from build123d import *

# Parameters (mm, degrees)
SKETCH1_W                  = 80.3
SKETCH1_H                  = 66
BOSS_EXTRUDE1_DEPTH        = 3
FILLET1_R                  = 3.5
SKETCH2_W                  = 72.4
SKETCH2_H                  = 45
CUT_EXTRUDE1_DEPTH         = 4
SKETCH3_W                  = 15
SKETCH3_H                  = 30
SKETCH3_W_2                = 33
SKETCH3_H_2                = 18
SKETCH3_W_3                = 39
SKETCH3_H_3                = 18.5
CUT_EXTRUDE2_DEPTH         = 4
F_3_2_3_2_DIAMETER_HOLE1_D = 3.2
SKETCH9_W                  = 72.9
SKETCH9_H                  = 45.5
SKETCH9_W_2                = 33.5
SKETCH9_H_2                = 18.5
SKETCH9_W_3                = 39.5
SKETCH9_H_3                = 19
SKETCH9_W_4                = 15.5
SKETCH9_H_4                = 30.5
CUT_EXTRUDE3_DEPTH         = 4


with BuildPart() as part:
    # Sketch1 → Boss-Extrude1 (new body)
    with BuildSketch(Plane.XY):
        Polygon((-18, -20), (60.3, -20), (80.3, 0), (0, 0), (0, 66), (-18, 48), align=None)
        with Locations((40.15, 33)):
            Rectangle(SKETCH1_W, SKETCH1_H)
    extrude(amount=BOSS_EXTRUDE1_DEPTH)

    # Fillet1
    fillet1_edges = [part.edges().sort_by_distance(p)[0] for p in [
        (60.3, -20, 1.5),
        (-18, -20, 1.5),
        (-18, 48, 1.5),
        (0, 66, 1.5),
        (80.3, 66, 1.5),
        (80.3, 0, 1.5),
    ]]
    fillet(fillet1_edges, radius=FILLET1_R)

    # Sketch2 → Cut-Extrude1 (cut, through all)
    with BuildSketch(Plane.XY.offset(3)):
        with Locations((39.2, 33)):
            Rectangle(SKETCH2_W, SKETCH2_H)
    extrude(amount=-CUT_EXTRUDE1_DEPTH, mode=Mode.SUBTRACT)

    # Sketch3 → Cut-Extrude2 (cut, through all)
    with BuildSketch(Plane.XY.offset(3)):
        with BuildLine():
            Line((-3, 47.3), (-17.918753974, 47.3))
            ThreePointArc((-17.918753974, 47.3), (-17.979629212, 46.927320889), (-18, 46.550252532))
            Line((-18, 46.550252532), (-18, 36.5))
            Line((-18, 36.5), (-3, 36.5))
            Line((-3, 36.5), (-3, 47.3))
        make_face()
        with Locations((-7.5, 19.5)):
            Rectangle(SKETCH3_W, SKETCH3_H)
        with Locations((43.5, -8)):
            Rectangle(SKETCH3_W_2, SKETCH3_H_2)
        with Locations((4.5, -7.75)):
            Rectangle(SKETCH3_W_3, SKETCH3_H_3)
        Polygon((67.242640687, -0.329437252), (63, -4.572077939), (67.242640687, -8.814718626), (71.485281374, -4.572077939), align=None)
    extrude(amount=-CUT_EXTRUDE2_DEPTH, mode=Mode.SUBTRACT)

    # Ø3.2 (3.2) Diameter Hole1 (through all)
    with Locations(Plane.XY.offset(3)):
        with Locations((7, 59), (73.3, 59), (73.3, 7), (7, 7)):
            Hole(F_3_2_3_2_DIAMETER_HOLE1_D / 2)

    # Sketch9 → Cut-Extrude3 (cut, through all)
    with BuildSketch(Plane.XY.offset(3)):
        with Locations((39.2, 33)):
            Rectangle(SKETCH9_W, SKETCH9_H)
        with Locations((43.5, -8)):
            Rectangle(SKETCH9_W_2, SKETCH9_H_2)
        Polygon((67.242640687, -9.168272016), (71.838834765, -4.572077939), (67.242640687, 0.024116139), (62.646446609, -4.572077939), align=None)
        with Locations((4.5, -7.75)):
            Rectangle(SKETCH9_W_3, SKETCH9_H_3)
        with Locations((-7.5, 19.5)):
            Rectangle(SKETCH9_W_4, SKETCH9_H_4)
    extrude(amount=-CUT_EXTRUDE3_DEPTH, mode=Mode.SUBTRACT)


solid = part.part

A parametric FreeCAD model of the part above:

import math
import FreeCAD as App
import Part
import Sketcher

V = App.Vector
Q = App.Units.Quantity


def edges_at(feature, points):
    """Names of the edges that pass closest to the given points."""
    edges = feature.Shape.Edges
    near = lambda p: min(range(len(edges)), key=lambda i: edges[i].distToShape(Part.Vertex(*p))[0])
    return sorted({f"Edge{near(p) + 1}" for p in points})


def add_polygon(sketch, points):
    """Adds a closed chain of lines whose ends are joined by coincident constraints."""
    first, n = sketch.GeometryCount, len(points)
    for a, b in zip(points, points[1:] + points[:1]):
        sketch.addGeometry(Part.LineSegment(App.Vector(*a, 0), App.Vector(*b, 0)), False)
    for i in range(n):
        sketch.addConstraint(Sketcher.Constraint("Coincident", first + i, 2, first + (i + 1) % n, 1))

doc = App.newDocument("Part")
body = doc.addObject("PartDesign::Body", "Body")

# Sketch on XY plane
sketch1 = body.newObject("Sketcher::SketchObject", "Sketch")
sketch1.AttachmentSupport = (doc.getObject("XY_Plane"), [""])
sketch1.MapMode = "FlatFace"
add_polygon(sketch1, [(-18, -20), (60, -20), (80, 0), (80, 66), (0, 66), (-18, 48)])  # lines 0-5
sketch1.addConstraint([
    Sketcher.Constraint("Horizontal", 0),
    Sketcher.Constraint("Vertical", 2),
    Sketcher.Constraint("Horizontal", 3),
    Sketcher.Constraint("Vertical", 5),
    Sketcher.Constraint("PointOnObject", 1, 2, -1),
    Sketcher.Constraint("PointOnObject", 3, 2, -2),
    Sketcher.Constraint("Parallel", 1, 4),
    Sketcher.Constraint("DistanceY", 2, 1, 2, 2, 66.0),
    Sketcher.Constraint("DistanceY", 5, 2, 5, 1, 68.0),
    Sketcher.Constraint("Angle", 1, Q("45 deg")),
    Sketcher.Constraint("DistanceX", 0, 1, 0, 2, 78.3),
    Sketcher.Constraint("DistanceY", 0, 2, -1, 1, 20.0),
])
pad1 = body.newObject("PartDesign::Pad", "Pad")
pad1.Profile = sketch1
pad1.Length = 3
doc.recompute()

fillet = body.newObject("PartDesign::Fillet", "Fillet")
fillet.Base = (pad1, edges_at(pad1, [
    (60.3, -20, 1.5),
    (-18, -20, 1.5),
    (-18, 48, 1.5),
    (0, 66, 1.5),
    (80.3, 66, 1.5),
    (80.3, 0, 1.5),
]))
fillet.Radius = 3.5

# Sketch on XY plane
sketch2 = body.newObject("Sketcher::SketchObject", "Sketch001")
sketch2.AttachmentSupport = (doc.getObject("XY_Plane"), [""])
sketch2.MapMode = "FlatFace"
sketch2.AttachmentOffset = App.Placement(V(0, 0, 3), App.Rotation())
add_polygon(sketch2, [(3, 56), (3, 10), (75, 10), (75, 56)])  # lines 0-3
sketch2.addConstraint([
    Sketcher.Constraint("Vertical", 0),
    Sketcher.Constraint("Horizontal", 1),
    Sketcher.Constraint("Vertical", 2),
    Sketcher.Constraint("Horizontal", 3),
    Sketcher.Constraint("DistanceY", 0, 2, 0, 1, 45.0),
    Sketcher.Constraint("DistanceX", 1, 1, 1, 2, 72.4),
    Sketcher.Constraint("DistanceX", -1, 1, 0, 2, 3.0),
    Sketcher.Constraint("DistanceY", -1, 1, 0, 2, 10.5),
])
pocket1 = body.newObject("PartDesign::Pocket", "Pocket")
pocket1.Profile = sketch2
pocket1.Type = "ThroughAll"

# Sketch on XY plane
sketch3 = body.newObject("Sketcher::SketchObject", "Sketch002")
sketch3.AttachmentSupport = (doc.getObject("XY_Plane"), [""])
sketch3.MapMode = "FlatFace"
sketch3.AttachmentOffset = App.Placement(V(0, 0, 3), App.Rotation())
sketch3.addGeometry(Part.LineSegment(V(-3, 47.3, 0), V(-17.9, 47.3, 0)), False)  # 0
sketch3.addGeometry(Part.ArcOfCircle(Part.Circle(V(-14.5, 46.6, 0), V(0, 0, 1), 3.5), math.radians(167.63), math.radians(180)), False)  # 1
sketch3.addGeometry(Part.LineSegment(V(-18, 46.6, 0), V(-18, 36.5, 0)), False)  # 2
sketch3.addGeometry(Part.LineSegment(V(-18, 36.5, 0), V(-3, 36.5, 0)), False)  # 3
sketch3.addGeometry(Part.LineSegment(V(-3, 36.5, 0), V(-3, 47.3, 0)), False)  # 4
add_polygon(sketch3, [(-15, 34.5), (-15, 4.5), (0, 4.5), (0, 34.5)])  # lines 5-8
add_polygon(sketch3, [(27, 1), (27, -17), (60, -17), (60, 1)])  # lines 9-12
add_polygon(sketch3, [(-15, 1.5), (-15, -17), (24, -17), (24, 1.5)])  # lines 13-16
add_polygon(sketch3, [(67.2, -0.3), (63, -4.6), (67.2, -8.8), (71.5, -4.6)])  # lines 17-20
sketch3.addConstraint([
    Sketcher.Constraint("Coincident", 0, 2, 1, 1),
    Sketcher.Constraint("Tangent", 1, 2, 2, 1),
    Sketcher.Constraint("Coincident", 2, 2, 3, 1),
    Sketcher.Constraint("Coincident", 3, 2, 4, 1),
    Sketcher.Constraint("Coincident", 4, 2, 0, 1),
    Sketcher.Constraint("Horizontal", 0),
    Sketcher.Constraint("Vertical", 2),
    Sketcher.Constraint("Horizontal", 3),
    Sketcher.Constraint("Vertical", 4),
    Sketcher.Constraint("Vertical", 5),
    Sketcher.Constraint("Horizontal", 6),
    Sketcher.Constraint("Vertical", 7),
    Sketcher.Constraint("Horizontal", 8),
    Sketcher.Constraint("Vertical", 9),
    Sketcher.Constraint("Horizontal", 10),
    Sketcher.Constraint("Vertical", 11),
    Sketcher.Constraint("Horizontal", 12),
    Sketcher.Constraint("Vertical", 13),
    Sketcher.Constraint("Horizontal", 14),
    Sketcher.Constraint("Vertical", 15),
    Sketcher.Constraint("Horizontal", 16),
    Sketcher.Constraint("PointOnObject", 6, 2, -2),
    Sketcher.Constraint("Perpendicular", 17, 18),
    Sketcher.Constraint("Perpendicular", 18, 19),
    Sketcher.Constraint("Perpendicular", 19, 20),
    Sketcher.Constraint("Horizontal", 10, 2, 13, 2),
    Sketcher.Constraint("Horizontal", 17, 2, 19, 2),
    Sketcher.Constraint("Vertical", 8, 2, 13, 2),
    Sketcher.Constraint("Vertical", 18, 2, 20, 2),
    Sketcher.Constraint("Equal", 3, 6),
    Sketcher.Constraint("Radius", 1, 3.5),
    Sketcher.Constraint("DistanceX", 3, 1, 3, 2, 15.0),
    Sketcher.Constraint("DistanceX", 10, 1, 10, 2, 33.0),
    Sketcher.Constraint("DistanceX", 14, 1, 14, 2, 39.0),
    Sketcher.Constraint("DistanceY", 5, 2, 5, 1, 30.0),
    Sketcher.Constraint("DistanceY", 9, 2, 9, 1, 18.0),
    Sketcher.Constraint("Distance", 17, 6.0),
    Sketcher.Constraint("DistanceY", 4, 1, 4, 2, 10.8),
    Sketcher.Constraint("DistanceY", 13, 2, 13, 1, 18.5),
    Sketcher.Constraint("DistanceX", 1, 2, -1, 1, 18.0),
    Sketcher.Constraint("DistanceX", -1, 1, 9, 2, 27.0),
    Sketcher.Constraint("DistanceY", 9, 2, -1, 1, 17.0),
    Sketcher.Constraint("DistanceX", -1, 1, 17, 2, 63.0),
    Sketcher.Constraint("DistanceY", 5, 2, 2, 2, 32.0),
    Sketcher.Constraint("DistanceY", 15, 2, 6, 2, 3.0),
    Sketcher.Constraint("DistanceX", 0, 2, 0, 1, 14.918754),
    Sketcher.Constraint("DistanceY", 18, 2, -1, 1, 8.814719),
])
pocket2 = body.newObject("PartDesign::Pocket", "Pocket001")
pocket2.Profile = sketch3
pocket2.Type = "ThroughAll"

# Sketch on XY plane
sketch4 = body.newObject("Sketcher::SketchObject", "Sketch003")
sketch4.AttachmentSupport = (doc.getObject("XY_Plane"), [""])
sketch4.MapMode = "FlatFace"
sketch4.AttachmentOffset = App.Placement(V(0, 0, 3), App.Rotation())
sketch4.addGeometry([
    Part.Circle(V(7, 59, 0), V(0, 0, 1), 1.6),
    Part.Circle(V(73.3, 59, 0), V(0, 0, 1), 1.6),
    Part.Circle(V(73.3, 7, 0), V(0, 0, 1), 1.6),
    Part.Circle(V(7, 7, 0), V(0, 0, 1), 1.6),
], False)
sketch4.addConstraint([
    Sketcher.Constraint("Equal", 0, 1),
    Sketcher.Constraint("Equal", 1, 2),
    Sketcher.Constraint("Equal", 2, 3),
    Sketcher.Constraint("Horizontal", 0, 3, 1, 3),
    Sketcher.Constraint("Horizontal", 2, 3, 3, 3),
    Sketcher.Constraint("Vertical", 1, 3, 2, 3),
    Sketcher.Constraint("Vertical", 0, 3, 3, 3),
    Sketcher.Constraint("Diameter", 0, 3.2),
    Sketcher.Constraint("DistanceX", -1, 1, 0, 3, 7.0),
    Sketcher.Constraint("DistanceY", -1, 1, 0, 3, 59.0),
    Sketcher.Constraint("DistanceY", -1, 1, 2, 3, 7.0),
    Sketcher.Constraint("DistanceX", -1, 1, 1, 3, 73.3),
])
doc.recompute()
hole = body.newObject("PartDesign::Hole", "Hole")
hole.Profile = sketch4
hole.ThreadType = "None"
hole.Diameter = 3.2
hole.DepthType = "ThroughAll"

# Sketch on XY plane
sketch5 = body.newObject("Sketcher::SketchObject", "Sketch004")
sketch5.AttachmentSupport = (doc.getObject("XY_Plane"), [""])
sketch5.MapMode = "FlatFace"
sketch5.AttachmentOffset = App.Placement(V(0, 0, 3), App.Rotation())
add_polygon(sketch5, [(3, 56), (3, 10), (76, 10), (76, 56)])  # lines 0-3
add_polygon(sketch5, [(27, 1), (27, -17), (60, -17), (60, 1)])  # lines 4-7
add_polygon(sketch5, [(67, -9), (72, -5), (67, 0), (63, -5)])  # lines 8-11
add_polygon(sketch5, [(-15, 2), (-15, -17), (24, -17), (24, 2)])  # lines 12-15
add_polygon(sketch5, [(-15, 35), (-15, 4), (0, 4), (0, 35)])  # lines 16-19
sketch5.addConstraint([
    Sketcher.Constraint("Vertical", 0),
    Sketcher.Constraint("Horizontal", 1),
    Sketcher.Constraint("Vertical", 2),
    Sketcher.Constraint("Horizontal", 3),
    Sketcher.Constraint("Vertical", 4),
    Sketcher.Constraint("Horizontal", 5),
    Sketcher.Constraint("Vertical", 6),
    Sketcher.Constraint("Horizontal", 7),
    Sketcher.Constraint("Vertical", 12),
    Sketcher.Constraint("Horizontal", 13),
    Sketcher.Constraint("Vertical", 14),
    Sketcher.Constraint("Horizontal", 15),
    Sketcher.Constraint("Vertical", 16),
    Sketcher.Constraint("Horizontal", 17),
    Sketcher.Constraint("Vertical", 18),
    Sketcher.Constraint("Horizontal", 19),
    Sketcher.Constraint("Perpendicular", 8, 9),
    Sketcher.Constraint("Perpendicular", 9, 10),
    Sketcher.Constraint("Perpendicular", 10, 11),
    Sketcher.Constraint("Horizontal", 8, 2, 10, 2),
    Sketcher.Constraint("Horizontal", 5, 2, 12, 2),
    Sketcher.Constraint("Vertical", 9, 2, 11, 2),
    Sketcher.Constraint("Vertical", 15, 2, 16, 2),
    Sketcher.Constraint("DistanceY", 12, 2, 12, 1, 19.0),
    Sketcher.Constraint("DistanceX", 1, 1, 1, 2, 72.9),
    Sketcher.Constraint("DistanceX", 5, 1, 5, 2, 33.5),
    Sketcher.Constraint("DistanceX", 13, 1, 13, 2, 39.5),
    Sketcher.Constraint("DistanceX", 17, 1, 17, 2, 15.5),
    Sketcher.Constraint("DistanceY", 0, 2, 0, 1, 45.5),
    Sketcher.Constraint("DistanceY", 4, 2, 4, 1, 18.5),
    Sketcher.Constraint("DistanceY", 16, 2, 16, 1, 30.5),
    Sketcher.Constraint("DistanceX", 0, 2, 4, 2, 24.0),
    Sketcher.Constraint("DistanceY", 4, 2, 3, 2, 73.0),
    Sketcher.Constraint("DistanceX", 12, 2, 0, 2, 18.0),
    Sketcher.Constraint("DistanceY", 16, 2, 0, 2, 6.0),
    Sketcher.Constraint("Distance", 8, 6.5),
    Sketcher.Constraint("DistanceX", -1, 1, 0, 2, 2.75),
    Sketcher.Constraint("DistanceY", -1, 1, 0, 2, 10.25),
    Sketcher.Constraint("DistanceX", -1, 1, 9, 2, 67.242641),
    Sketcher.Constraint("DistanceY", 8, 2, -1, 1, 4.572078),
])
pocket3 = body.newObject("PartDesign::Pocket", "Pocket002")
pocket3.Profile = sketch5
pocket3.Type = "ThroughAll"

doc.recompute()
